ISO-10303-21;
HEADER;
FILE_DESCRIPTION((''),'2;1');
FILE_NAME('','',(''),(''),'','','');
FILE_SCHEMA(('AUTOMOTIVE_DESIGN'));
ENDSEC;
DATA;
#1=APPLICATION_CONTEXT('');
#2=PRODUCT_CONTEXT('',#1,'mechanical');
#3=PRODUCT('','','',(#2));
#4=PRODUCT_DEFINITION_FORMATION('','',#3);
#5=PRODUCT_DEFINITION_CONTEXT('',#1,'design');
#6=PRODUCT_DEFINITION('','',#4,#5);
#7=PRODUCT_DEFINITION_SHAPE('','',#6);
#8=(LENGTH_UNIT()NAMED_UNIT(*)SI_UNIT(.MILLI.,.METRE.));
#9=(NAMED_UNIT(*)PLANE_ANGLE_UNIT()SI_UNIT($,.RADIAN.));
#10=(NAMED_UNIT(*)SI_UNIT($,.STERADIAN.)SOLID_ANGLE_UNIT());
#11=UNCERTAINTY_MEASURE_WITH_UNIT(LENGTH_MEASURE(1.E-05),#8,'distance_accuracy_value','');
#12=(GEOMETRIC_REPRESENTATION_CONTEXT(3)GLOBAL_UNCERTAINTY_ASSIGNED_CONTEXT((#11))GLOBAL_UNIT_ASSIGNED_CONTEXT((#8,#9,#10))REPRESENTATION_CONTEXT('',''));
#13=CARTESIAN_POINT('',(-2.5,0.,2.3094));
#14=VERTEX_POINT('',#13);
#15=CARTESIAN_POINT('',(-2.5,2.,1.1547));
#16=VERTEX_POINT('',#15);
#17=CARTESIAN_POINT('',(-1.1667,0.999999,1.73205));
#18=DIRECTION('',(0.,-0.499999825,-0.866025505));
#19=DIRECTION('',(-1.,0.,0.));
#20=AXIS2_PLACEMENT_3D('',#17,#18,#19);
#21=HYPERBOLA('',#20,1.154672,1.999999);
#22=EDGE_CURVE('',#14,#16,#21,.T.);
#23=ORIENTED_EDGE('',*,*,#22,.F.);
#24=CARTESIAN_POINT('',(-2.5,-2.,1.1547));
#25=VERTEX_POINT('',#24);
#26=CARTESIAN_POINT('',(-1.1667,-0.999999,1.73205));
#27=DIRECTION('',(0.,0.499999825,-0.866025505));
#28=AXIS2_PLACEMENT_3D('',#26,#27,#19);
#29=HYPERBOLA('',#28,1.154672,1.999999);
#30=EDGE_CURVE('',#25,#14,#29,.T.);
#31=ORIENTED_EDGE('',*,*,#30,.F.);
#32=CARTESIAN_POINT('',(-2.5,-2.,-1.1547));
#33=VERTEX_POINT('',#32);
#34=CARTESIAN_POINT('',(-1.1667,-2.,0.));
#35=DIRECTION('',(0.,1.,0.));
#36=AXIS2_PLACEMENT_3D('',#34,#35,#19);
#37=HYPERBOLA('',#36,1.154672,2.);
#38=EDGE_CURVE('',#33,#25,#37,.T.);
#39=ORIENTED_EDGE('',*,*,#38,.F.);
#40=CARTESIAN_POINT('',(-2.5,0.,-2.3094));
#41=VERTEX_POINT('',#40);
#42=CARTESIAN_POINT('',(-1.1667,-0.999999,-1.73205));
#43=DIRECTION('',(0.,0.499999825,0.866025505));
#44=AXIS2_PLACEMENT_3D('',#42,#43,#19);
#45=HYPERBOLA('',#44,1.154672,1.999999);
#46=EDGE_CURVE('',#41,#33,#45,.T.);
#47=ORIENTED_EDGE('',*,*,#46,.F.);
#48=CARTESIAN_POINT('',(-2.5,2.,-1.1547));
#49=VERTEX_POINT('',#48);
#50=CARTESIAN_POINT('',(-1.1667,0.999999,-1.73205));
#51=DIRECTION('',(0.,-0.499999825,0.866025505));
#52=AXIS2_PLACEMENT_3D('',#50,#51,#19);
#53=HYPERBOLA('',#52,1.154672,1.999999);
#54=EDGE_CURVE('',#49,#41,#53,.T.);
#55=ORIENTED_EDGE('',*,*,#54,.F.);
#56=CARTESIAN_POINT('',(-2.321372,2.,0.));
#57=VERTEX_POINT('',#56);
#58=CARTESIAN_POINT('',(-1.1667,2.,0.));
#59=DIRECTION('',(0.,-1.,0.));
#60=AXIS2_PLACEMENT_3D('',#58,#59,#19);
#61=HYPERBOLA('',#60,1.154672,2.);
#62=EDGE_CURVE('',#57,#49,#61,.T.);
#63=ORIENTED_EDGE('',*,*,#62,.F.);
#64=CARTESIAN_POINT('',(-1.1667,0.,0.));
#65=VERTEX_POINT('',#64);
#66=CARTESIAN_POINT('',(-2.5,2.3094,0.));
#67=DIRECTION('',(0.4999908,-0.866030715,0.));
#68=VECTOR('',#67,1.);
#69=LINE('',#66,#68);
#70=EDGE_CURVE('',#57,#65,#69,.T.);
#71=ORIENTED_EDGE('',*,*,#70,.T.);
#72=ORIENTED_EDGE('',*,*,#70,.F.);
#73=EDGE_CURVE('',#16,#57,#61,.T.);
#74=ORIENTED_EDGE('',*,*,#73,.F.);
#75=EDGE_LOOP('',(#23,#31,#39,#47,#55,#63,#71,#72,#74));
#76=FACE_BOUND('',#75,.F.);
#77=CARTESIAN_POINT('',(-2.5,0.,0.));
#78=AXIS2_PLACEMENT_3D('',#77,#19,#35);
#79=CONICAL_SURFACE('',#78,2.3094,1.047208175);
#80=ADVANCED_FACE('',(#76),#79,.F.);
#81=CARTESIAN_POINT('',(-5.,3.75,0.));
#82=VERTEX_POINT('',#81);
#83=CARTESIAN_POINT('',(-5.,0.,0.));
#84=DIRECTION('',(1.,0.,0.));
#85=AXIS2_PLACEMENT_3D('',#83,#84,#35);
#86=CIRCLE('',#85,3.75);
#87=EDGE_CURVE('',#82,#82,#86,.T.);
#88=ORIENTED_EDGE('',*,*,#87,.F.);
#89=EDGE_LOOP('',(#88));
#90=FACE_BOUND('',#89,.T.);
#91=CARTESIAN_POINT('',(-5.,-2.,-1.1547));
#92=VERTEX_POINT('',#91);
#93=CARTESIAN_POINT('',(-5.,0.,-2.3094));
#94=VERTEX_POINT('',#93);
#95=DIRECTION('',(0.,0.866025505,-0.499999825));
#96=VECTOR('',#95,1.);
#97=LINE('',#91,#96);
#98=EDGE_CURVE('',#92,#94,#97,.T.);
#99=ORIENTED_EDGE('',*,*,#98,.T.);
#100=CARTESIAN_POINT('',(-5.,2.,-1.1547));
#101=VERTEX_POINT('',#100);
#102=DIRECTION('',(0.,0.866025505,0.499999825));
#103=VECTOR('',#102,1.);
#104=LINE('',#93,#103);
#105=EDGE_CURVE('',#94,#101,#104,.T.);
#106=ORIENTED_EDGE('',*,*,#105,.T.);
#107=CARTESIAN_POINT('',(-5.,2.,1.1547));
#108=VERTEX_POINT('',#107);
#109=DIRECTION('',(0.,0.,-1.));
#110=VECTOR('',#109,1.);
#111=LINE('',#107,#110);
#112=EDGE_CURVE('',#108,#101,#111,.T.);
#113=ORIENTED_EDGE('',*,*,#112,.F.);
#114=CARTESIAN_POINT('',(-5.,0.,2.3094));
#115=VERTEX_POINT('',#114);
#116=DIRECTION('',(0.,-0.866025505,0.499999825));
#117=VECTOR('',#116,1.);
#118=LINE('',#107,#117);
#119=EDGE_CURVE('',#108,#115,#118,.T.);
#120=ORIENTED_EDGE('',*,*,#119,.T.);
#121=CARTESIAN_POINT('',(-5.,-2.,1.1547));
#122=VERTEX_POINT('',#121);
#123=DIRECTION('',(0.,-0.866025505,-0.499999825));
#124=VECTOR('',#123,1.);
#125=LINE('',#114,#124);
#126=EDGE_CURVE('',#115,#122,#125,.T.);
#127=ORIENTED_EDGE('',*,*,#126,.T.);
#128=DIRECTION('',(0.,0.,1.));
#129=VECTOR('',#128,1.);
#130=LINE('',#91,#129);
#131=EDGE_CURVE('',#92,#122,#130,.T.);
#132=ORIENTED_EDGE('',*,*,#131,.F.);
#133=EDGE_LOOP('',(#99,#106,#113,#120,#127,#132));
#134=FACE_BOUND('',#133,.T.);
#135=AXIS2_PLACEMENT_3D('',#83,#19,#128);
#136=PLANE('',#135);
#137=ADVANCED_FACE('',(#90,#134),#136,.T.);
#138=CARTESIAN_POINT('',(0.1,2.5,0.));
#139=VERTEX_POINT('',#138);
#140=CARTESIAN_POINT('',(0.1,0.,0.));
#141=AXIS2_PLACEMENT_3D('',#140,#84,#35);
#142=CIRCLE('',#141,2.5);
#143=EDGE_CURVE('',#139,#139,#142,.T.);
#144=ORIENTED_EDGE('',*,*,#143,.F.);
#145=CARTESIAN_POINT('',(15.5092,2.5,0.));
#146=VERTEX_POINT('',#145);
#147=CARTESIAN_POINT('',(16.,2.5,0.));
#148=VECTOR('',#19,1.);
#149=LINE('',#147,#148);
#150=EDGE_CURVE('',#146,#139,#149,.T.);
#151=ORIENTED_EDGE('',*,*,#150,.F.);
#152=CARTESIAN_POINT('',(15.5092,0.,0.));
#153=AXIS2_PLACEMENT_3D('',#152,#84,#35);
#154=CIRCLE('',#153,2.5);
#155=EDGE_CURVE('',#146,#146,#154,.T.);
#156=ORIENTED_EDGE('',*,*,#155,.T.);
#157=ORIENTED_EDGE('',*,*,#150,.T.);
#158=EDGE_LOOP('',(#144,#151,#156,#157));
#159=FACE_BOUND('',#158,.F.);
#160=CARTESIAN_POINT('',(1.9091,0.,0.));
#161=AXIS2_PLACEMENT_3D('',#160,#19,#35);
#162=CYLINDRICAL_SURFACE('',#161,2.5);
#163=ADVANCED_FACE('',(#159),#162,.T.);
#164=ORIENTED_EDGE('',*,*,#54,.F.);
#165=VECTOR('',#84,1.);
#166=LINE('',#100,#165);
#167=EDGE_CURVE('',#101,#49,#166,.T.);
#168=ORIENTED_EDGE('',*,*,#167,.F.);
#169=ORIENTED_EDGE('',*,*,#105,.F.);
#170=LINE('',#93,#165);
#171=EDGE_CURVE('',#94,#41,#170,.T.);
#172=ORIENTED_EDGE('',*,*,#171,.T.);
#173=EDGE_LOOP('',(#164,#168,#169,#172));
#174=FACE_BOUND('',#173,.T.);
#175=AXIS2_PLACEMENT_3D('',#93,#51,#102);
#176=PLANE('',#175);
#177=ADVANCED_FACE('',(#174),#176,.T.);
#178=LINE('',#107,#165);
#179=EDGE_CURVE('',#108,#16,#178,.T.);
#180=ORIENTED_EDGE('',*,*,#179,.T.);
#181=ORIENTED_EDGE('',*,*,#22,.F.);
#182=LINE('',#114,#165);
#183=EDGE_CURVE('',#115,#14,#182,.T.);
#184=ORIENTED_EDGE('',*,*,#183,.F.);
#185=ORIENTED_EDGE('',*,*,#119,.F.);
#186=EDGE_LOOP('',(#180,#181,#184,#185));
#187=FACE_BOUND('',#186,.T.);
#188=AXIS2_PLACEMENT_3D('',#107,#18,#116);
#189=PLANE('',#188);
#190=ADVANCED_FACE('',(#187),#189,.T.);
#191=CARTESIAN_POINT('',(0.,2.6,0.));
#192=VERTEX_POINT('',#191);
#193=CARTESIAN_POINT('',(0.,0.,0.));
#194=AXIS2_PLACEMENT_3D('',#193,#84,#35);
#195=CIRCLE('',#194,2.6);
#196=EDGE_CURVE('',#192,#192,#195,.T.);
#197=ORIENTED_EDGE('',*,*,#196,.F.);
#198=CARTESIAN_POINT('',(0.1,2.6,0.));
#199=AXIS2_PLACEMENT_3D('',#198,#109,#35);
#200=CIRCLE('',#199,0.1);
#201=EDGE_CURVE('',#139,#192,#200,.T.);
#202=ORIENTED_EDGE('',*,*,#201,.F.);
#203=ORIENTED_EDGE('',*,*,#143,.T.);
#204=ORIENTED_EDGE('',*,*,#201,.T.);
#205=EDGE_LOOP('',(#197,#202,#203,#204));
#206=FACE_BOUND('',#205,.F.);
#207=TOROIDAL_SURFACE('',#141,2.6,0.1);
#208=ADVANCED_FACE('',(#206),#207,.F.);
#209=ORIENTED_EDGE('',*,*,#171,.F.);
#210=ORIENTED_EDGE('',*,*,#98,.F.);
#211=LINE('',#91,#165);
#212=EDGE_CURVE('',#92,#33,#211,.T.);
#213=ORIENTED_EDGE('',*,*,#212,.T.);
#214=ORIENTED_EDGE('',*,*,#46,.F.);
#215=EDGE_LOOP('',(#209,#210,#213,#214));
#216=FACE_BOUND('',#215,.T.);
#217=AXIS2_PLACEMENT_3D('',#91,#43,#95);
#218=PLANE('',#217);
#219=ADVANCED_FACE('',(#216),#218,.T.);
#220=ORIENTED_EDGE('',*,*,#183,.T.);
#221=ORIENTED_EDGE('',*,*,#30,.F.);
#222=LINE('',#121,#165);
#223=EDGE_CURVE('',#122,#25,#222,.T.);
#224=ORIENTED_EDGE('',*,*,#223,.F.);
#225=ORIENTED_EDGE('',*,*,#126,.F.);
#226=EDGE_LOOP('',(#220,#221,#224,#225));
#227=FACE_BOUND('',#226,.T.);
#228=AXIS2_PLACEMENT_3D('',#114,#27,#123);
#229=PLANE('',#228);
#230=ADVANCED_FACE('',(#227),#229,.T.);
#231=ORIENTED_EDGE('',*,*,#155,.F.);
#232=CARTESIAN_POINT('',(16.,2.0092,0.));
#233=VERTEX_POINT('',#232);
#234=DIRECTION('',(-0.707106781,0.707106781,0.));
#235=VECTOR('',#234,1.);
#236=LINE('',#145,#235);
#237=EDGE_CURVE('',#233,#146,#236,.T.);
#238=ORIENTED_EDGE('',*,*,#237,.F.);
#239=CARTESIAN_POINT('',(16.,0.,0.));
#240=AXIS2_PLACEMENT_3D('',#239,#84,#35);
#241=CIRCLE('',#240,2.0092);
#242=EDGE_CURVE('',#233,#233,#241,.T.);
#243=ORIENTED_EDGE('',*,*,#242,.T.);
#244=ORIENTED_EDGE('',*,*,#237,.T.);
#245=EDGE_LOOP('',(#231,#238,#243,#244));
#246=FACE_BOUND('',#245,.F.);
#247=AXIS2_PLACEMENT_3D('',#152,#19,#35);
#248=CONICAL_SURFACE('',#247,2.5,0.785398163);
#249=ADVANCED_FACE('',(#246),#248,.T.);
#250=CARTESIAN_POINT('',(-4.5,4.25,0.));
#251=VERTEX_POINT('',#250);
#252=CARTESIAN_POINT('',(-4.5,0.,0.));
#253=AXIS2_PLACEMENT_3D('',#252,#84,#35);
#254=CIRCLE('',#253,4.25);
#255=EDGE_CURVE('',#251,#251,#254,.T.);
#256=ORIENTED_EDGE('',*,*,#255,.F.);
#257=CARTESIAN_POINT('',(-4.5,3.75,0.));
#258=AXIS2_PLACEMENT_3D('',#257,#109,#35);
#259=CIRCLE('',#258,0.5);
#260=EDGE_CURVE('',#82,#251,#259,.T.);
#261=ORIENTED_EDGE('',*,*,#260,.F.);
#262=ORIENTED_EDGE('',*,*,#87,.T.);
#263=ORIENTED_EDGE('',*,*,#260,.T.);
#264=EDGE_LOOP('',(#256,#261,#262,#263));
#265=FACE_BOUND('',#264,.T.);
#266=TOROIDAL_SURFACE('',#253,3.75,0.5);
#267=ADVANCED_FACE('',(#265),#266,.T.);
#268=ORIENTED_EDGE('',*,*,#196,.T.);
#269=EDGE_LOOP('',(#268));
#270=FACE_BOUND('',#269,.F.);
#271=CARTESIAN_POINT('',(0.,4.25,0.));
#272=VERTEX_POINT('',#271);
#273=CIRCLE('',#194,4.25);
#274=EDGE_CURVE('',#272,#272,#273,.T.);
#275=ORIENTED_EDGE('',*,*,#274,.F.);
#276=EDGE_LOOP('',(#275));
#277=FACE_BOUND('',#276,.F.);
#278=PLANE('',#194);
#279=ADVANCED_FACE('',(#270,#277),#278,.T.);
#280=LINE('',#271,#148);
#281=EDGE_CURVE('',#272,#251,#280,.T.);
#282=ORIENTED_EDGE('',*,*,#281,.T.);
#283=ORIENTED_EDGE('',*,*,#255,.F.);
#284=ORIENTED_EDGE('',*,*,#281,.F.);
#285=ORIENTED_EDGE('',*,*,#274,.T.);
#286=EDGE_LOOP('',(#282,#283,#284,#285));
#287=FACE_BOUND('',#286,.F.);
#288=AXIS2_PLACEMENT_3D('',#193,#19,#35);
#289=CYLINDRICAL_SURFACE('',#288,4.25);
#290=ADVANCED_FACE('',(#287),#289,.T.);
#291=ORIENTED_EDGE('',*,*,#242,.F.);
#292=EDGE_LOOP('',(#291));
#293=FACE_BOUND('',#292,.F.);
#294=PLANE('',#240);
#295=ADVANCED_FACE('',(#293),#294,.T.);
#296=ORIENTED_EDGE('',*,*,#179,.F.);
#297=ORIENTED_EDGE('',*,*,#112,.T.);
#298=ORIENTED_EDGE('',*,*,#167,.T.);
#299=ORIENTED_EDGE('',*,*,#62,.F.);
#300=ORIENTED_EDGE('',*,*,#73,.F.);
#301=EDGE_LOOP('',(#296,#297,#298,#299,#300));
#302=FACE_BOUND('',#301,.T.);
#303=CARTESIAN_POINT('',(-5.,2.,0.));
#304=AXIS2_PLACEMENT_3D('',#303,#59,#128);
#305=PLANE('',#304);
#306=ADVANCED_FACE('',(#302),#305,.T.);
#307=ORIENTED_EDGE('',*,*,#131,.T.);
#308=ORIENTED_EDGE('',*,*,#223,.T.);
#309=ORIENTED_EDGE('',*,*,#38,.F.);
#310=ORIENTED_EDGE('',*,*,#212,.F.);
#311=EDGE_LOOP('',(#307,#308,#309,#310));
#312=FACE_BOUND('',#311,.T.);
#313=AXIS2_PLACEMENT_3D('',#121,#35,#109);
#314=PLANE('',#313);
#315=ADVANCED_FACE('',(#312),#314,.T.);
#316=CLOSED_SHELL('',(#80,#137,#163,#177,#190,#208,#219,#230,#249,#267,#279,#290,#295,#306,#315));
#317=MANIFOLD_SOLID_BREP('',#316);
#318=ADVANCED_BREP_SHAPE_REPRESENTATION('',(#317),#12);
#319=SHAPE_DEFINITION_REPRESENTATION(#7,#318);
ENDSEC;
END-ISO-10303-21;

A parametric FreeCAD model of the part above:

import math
import FreeCAD as App
import Part
import Sketcher
from FreeCAD import Vector
Q = App.Units.Quantity


def edges_at(feature, points):
    """Names of the edges that pass closest to the given points."""
    edges = feature.Shape.Edges
    near = lambda p: min(range(len(edges)), key=lambda i: edges[i].distToShape(Part.Vertex(*p))[0])
    return sorted({f"Edge{near(p) + 1}" for p in points})

doc = App.newDocument("Part")
params = doc.addObject("Spreadsheet::Sheet", "Params")
for row, (alias, value) in enumerate([
    ("sketch1_width", "16 mm"),
    ("sketch1_width2", "5 mm"),
    ("sketch1_width3", "2.5 mm"),
    ("sketch1_height", "1.75 mm"),
    ("revolution_angle", "360 deg"),
    ("pad1_length", "2.6786 mm"),
    ("fillet_radius", "0.5 mm"),
    ("chamfer_size", "0.4908 mm"),
    ("chamfer_size2", "0.4908 mm"),
    ("fillet2_radius", "0.1 mm"),
], start=1):
    params.set(f"A{row}", alias)
    params.set(f"B{row}", "=" + value)
    params.setAlias(f"B{row}", alias)

body = doc.addObject("PartDesign::Body", "Body")

# Sketch on XY plane
sketch1 = doc.addObject("Sketcher::SketchObject", "Sketch")
body.addObject(sketch1)
sketch1.AttachmentSupport = (doc.XY_Plane, [""])
sketch1.MapMode = "FlatFace"
sketch1.addGeometry(Part.LineSegment(Vector(-2.5, 2.3094, 0), Vector(-1.1667, 0, 0)), False)
sketch1.addGeometry(Part.LineSegment(Vector(-1.1667, 0, 0), Vector(16, 0, 0)), False)
sketch1.addGeometry(Part.LineSegment(Vector(16, 0, 0), Vector(16, 2.5, 0)), False)
sketch1.addGeometry(Part.LineSegment(Vector(16, 2.5, 0), Vector(0, 2.5, 0)), False)
sketch1.addGeometry(Part.LineSegment(Vector(0, 2.5, 0), Vector(0, 4.25, 0)), False)
sketch1.addGeometry(Part.LineSegment(Vector(0, 4.25, 0), Vector(-5, 4.25, 0)), False)
sketch1.addGeometry(Part.LineSegment(Vector(-5, 4.25, 0), Vector(-5, 2.3094, 0)), False)
sketch1.addGeometry(Part.LineSegment(Vector(-5, 2.3094, 0), Vector(-2.5, 2.3094, 0)), False)
sketch1.addConstraint(Sketcher.Constraint("Coincident", 0, 2, 1, 1))
sketch1.addConstraint(Sketcher.Constraint("Coincident", 1, 2, 2, 1))
sketch1.addConstraint(Sketcher.Constraint("Coincident", 2, 2, 3, 1))
sketch1.addConstraint(Sketcher.Constraint("Coincident", 3, 2, 4, 1))
sketch1.addConstraint(Sketcher.Constraint("Coincident", 4, 2, 5, 1))
sketch1.addConstraint(Sketcher.Constraint("Coincident", 5, 2, 6, 1))
sketch1.addConstraint(Sketcher.Constraint("Coincident", 6, 2, 7, 1))
sketch1.addConstraint(Sketcher.Constraint("Coincident", 7, 2, 0, 1))
sketch1.addConstraint(Sketcher.Constraint("Horizontal", 1))
sketch1.addConstraint(Sketcher.Constraint("Vertical", 2))
sketch1.addConstraint(Sketcher.Constraint("Horizontal", 3))
sketch1.addConstraint(Sketcher.Constraint("Vertical", 4))
sketch1.addConstraint(Sketcher.Constraint("Horizontal", 5))
sketch1.addConstraint(Sketcher.Constraint("Vertical", 6))
sketch1.addConstraint(Sketcher.Constraint("Horizontal", 7))
sketch1.addConstraint(Sketcher.Constraint("PointOnObject", 0, 2, -1))
sketch1.addConstraint(Sketcher.Constraint("PointOnObject", 3, 2, -2))
sketch1.addConstraint(Sketcher.Constraint("Equal", 7, 2))
sketch1.addConstraint(Sketcher.Constraint("DistanceX", 3, 2, 3, 1, Q("16 mm")))
sketch1.addConstraint(Sketcher.Constraint("DistanceX", 5, 2, 5, 1, Q("5 mm")))
sketch1.addConstraint(Sketcher.Constraint("DistanceX", 7, 1, 7, 2, Q("2.5 mm")))
sketch1.addConstraint(Sketcher.Constraint("Angle", 0, Q("-60.0006 deg")))
sketch1.addConstraint(Sketcher.Constraint("DistanceY", 4, 1, 4, 2, Q("1.75 mm")))
sketch1.addConstraint(Sketcher.Constraint("DistanceX", 1, 1, 1, 2, Q("17.1667 mm")))
sketch1.setExpression("Constraints[18]", "Params.sketch1_width")
sketch1.setExpression("Constraints[19]", "Params.sketch1_width2")
sketch1.setExpression("Constraints[20]", "Params.sketch1_width3")
sketch1.setExpression("Constraints[22]", "Params.sketch1_height")
revolution = doc.addObject("PartDesign::Revolution", "Revolution")
body.addObject(revolution)
revolution.Profile = sketch1
revolution.ReferenceAxis = (sketch1, ["H_Axis"])
revolution.setExpression("Angle", "Params.revolution_angle")

# Sketch on YZ plane
sketch2 = doc.addObject("Sketcher::SketchObject", "Sketch001")
body.addObject(sketch2)
sketch2.AttachmentSupport = (doc.YZ_Plane, [""])
sketch2.MapMode = "FlatFace"
sketch2.AttachmentOffset = App.Placement(Vector(0, 0, -5), App.Rotation())
sketch2.addGeometry(Part.LineSegment(Vector(2, 1.1547, 0), Vector(0, 2.3094, 0)), False)
sketch2.addGeometry(Part.ArcOfCircle(Part.Circle(Vector(0, 0, 0), Vector(0, 0, 1), 2.3094), math.radians(29.999988), math.radians(90)), False)
sketch2.addGeometry(Part.ArcOfCircle(Part.Circle(Vector(0, 0, 0), Vector(0, 0, 1), 2.3094), math.radians(90), math.radians(150.000012)), False)
sketch2.addGeometry(Part.LineSegment(Vector(0, 2.3094, 0), Vector(-2, 1.1547, 0)), False)
sketch2.addGeometry(Part.ArcOfCircle(Part.Circle(Vector(0, 0, 0), Vector(0, 0, 1), 2.3094), math.radians(-29.999988), math.radians(29.999988)), False)
sketch2.addGeometry(Part.LineSegment(Vector(2, -1.1547, 0), Vector(2, 1.1547, 0)), False)
sketch2.addGeometry(Part.LineSegment(Vector(-2, 1.1547, 0), Vector(-2, -1.1547, 0)), False)
sketch2.addGeometry(Part.ArcOfCircle(Part.Circle(Vector(0, 0, 0), Vector(0, 0, 1), 2.3094), math.radians(150.000012), math.radians(209.999988)), False)
sketch2.addGeometry(Part.LineSegment(Vector(-2, -1.1547, 0), Vector(0, -2.3094, 0)), False)
sketch2.addGeometry(Part.ArcOfCircle(Part.Circle(Vector(0, 0, 0), Vector(0, 0, 1), 2.3094), math.radians(-150.000012), math.radians(-90)), False)
sketch2.addGeometry(Part.ArcOfCircle(Part.Circle(Vector(0, 0, 0), Vector(0, 0, 1), 2.3094), math.radians(-90), math.radians(-29.999988)), False)
sketch2.addGeometry(Part.LineSegment(Vector(0, -2.3094, 0), Vector(2, -1.1547, 0)), False)
sketch2.addConstraint(Sketcher.Constraint("Coincident", 0, 1, 1, 1))
sketch2.addConstraint(Sketcher.Constraint("Coincident", 1, 2, 0, 2))
sketch2.addConstraint(Sketcher.Constraint("Coincident", 2, 1, 3, 1))
sketch2.addConstraint(Sketcher.Constraint("Coincident", 3, 2, 2, 2))
sketch2.addConstraint(Sketcher.Constraint("Coincident", 4, 1, 5, 1))
sketch2.addConstraint(Sketcher.Constraint("Coincident", 5, 2, 4, 2))
sketch2.addConstraint(Sketcher.Constraint("Coincident", 6, 1, 7, 1))
sketch2.addConstraint(Sketcher.Constraint("Coincident", 7, 2, 6, 2))
sketch2.addConstraint(Sketcher.Constraint("Coincident", 8, 1, 9, 1))
sketch2.addConstraint(Sketcher.Constraint("Coincident", 9, 2, 8, 2))
sketch2.addConstraint(Sketcher.Constraint("Coincident", 10, 1, 11, 1))
sketch2.addConstraint(Sketcher.Constraint("Coincident", 11, 2, 10, 2))
sketch2.addConstraint(Sketcher.Constraint("Vertical", 5))
sketch2.addConstraint(Sketcher.Constraint("Vertical", 6))
sketch2.addConstraint(Sketcher.Constraint("Coincident", 1, 3, -1, 1))
sketch2.addConstraint(Sketcher.Constraint("Coincident", 2, 3, -1, 1))
sketch2.addConstraint(Sketcher.Constraint("Coincident", 4, 3, -1, 1))
sketch2.addConstraint(Sketcher.Constraint("Coincident", 7, 3, -1, 1))
sketch2.addConstraint(Sketcher.Constraint("Coincident", 9, 3, -1, 1))
sketch2.addConstraint(Sketcher.Constraint("Coincident", 10, 3, -1, 1))
sketch2.addConstraint(Sketcher.Constraint("Coincident", 2, 1, 1, 2))
sketch2.addConstraint(Sketcher.Constraint("Coincident", 5, 2, 0, 1))
sketch2.addConstraint(Sketcher.Constraint("Coincident", 6, 1, 3, 2))
sketch2.addConstraint(Sketcher.Constraint("Coincident", 8, 1, 7, 2))
sketch2.addConstraint(Sketcher.Constraint("Coincident", 10, 1, 9, 2))
sketch2.addConstraint(Sketcher.Constraint("PointOnObject", 1, 2, -2))
sketch2.addConstraint(Sketcher.Constraint("PointOnObject", 9, 2, -2))
sketch2.addConstraint(Sketcher.Constraint("Parallel", 0, 8))
sketch2.addConstraint(Sketcher.Constraint("Parallel", 3, 11))
sketch2.addConstraint(Sketcher.Constraint("Angle", 0, Q("150 deg")))
sketch2.addConstraint(Sketcher.Constraint("DistanceX", -1, 1, 0, 1, Q("2 mm")))
pad1 = doc.addObject("PartDesign::Pad", "Pad")
body.addObject(pad1)
pad1.Profile = sketch2
pad1.setExpression("Length", "Params.pad1_length")
doc.recompute()

fillet = doc.addObject("PartDesign::Fillet", "Fillet")
body.addObject(fillet)
fillet.Base = (pad1, edges_at(pad1, [(-5, -4.25, 0)]))
fillet.setExpression("Radius", "Params.fillet_radius")
doc.recompute()

chamfer = doc.addObject("PartDesign::Chamfer", "Chamfer")
body.addObject(chamfer)
chamfer.Base = (fillet, edges_at(fillet, [(16, -2.5, 0)]))
chamfer.ChamferType = "Two distances"
chamfer.setExpression("Size", "Params.chamfer_size")
chamfer.setExpression("Size2", "Params.chamfer_size2")
doc.recompute()

fillet2 = doc.addObject("PartDesign::Fillet", "Fillet001")
body.addObject(fillet2)
fillet2.Base = (chamfer, edges_at(chamfer, [(0, -2.5, 0)]))
fillet2.setExpression("Radius", "Params.fillet2_radius")

doc.recompute()
